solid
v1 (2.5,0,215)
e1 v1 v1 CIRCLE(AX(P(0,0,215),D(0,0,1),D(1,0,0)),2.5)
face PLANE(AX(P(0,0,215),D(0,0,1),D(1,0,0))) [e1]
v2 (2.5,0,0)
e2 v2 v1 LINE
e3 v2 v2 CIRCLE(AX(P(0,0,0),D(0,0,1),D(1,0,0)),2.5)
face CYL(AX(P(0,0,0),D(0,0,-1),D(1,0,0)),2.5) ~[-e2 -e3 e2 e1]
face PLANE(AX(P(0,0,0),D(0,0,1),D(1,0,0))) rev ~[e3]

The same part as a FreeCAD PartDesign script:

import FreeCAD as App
import Part
import Sketcher

doc = App.newDocument("Part")
body = doc.addObject("PartDesign::Body", "Body")

sketch1 = body.newObject("Sketcher::SketchObject", "Sketch")
sketch1.AttachmentSupport = (doc.getObject("XY_Plane"), [""])
sketch1.MapMode = "FlatFace"
sketch1.addGeometry(Part.Circle(App.Vector(0, 0, 0), App.Vector(0, 0, 1), 2.5), False)
sketch1.addConstraint(Sketcher.Constraint("Coincident", 0, 3, -1, 1))
sketch1.addConstraint(Sketcher.Constraint("Diameter", 0, 5.0))
pad1 = body.newObject("PartDesign::Pad", "Pad")
pad1.Profile = sketch1
pad1.Length = 215

doc.recompute()
